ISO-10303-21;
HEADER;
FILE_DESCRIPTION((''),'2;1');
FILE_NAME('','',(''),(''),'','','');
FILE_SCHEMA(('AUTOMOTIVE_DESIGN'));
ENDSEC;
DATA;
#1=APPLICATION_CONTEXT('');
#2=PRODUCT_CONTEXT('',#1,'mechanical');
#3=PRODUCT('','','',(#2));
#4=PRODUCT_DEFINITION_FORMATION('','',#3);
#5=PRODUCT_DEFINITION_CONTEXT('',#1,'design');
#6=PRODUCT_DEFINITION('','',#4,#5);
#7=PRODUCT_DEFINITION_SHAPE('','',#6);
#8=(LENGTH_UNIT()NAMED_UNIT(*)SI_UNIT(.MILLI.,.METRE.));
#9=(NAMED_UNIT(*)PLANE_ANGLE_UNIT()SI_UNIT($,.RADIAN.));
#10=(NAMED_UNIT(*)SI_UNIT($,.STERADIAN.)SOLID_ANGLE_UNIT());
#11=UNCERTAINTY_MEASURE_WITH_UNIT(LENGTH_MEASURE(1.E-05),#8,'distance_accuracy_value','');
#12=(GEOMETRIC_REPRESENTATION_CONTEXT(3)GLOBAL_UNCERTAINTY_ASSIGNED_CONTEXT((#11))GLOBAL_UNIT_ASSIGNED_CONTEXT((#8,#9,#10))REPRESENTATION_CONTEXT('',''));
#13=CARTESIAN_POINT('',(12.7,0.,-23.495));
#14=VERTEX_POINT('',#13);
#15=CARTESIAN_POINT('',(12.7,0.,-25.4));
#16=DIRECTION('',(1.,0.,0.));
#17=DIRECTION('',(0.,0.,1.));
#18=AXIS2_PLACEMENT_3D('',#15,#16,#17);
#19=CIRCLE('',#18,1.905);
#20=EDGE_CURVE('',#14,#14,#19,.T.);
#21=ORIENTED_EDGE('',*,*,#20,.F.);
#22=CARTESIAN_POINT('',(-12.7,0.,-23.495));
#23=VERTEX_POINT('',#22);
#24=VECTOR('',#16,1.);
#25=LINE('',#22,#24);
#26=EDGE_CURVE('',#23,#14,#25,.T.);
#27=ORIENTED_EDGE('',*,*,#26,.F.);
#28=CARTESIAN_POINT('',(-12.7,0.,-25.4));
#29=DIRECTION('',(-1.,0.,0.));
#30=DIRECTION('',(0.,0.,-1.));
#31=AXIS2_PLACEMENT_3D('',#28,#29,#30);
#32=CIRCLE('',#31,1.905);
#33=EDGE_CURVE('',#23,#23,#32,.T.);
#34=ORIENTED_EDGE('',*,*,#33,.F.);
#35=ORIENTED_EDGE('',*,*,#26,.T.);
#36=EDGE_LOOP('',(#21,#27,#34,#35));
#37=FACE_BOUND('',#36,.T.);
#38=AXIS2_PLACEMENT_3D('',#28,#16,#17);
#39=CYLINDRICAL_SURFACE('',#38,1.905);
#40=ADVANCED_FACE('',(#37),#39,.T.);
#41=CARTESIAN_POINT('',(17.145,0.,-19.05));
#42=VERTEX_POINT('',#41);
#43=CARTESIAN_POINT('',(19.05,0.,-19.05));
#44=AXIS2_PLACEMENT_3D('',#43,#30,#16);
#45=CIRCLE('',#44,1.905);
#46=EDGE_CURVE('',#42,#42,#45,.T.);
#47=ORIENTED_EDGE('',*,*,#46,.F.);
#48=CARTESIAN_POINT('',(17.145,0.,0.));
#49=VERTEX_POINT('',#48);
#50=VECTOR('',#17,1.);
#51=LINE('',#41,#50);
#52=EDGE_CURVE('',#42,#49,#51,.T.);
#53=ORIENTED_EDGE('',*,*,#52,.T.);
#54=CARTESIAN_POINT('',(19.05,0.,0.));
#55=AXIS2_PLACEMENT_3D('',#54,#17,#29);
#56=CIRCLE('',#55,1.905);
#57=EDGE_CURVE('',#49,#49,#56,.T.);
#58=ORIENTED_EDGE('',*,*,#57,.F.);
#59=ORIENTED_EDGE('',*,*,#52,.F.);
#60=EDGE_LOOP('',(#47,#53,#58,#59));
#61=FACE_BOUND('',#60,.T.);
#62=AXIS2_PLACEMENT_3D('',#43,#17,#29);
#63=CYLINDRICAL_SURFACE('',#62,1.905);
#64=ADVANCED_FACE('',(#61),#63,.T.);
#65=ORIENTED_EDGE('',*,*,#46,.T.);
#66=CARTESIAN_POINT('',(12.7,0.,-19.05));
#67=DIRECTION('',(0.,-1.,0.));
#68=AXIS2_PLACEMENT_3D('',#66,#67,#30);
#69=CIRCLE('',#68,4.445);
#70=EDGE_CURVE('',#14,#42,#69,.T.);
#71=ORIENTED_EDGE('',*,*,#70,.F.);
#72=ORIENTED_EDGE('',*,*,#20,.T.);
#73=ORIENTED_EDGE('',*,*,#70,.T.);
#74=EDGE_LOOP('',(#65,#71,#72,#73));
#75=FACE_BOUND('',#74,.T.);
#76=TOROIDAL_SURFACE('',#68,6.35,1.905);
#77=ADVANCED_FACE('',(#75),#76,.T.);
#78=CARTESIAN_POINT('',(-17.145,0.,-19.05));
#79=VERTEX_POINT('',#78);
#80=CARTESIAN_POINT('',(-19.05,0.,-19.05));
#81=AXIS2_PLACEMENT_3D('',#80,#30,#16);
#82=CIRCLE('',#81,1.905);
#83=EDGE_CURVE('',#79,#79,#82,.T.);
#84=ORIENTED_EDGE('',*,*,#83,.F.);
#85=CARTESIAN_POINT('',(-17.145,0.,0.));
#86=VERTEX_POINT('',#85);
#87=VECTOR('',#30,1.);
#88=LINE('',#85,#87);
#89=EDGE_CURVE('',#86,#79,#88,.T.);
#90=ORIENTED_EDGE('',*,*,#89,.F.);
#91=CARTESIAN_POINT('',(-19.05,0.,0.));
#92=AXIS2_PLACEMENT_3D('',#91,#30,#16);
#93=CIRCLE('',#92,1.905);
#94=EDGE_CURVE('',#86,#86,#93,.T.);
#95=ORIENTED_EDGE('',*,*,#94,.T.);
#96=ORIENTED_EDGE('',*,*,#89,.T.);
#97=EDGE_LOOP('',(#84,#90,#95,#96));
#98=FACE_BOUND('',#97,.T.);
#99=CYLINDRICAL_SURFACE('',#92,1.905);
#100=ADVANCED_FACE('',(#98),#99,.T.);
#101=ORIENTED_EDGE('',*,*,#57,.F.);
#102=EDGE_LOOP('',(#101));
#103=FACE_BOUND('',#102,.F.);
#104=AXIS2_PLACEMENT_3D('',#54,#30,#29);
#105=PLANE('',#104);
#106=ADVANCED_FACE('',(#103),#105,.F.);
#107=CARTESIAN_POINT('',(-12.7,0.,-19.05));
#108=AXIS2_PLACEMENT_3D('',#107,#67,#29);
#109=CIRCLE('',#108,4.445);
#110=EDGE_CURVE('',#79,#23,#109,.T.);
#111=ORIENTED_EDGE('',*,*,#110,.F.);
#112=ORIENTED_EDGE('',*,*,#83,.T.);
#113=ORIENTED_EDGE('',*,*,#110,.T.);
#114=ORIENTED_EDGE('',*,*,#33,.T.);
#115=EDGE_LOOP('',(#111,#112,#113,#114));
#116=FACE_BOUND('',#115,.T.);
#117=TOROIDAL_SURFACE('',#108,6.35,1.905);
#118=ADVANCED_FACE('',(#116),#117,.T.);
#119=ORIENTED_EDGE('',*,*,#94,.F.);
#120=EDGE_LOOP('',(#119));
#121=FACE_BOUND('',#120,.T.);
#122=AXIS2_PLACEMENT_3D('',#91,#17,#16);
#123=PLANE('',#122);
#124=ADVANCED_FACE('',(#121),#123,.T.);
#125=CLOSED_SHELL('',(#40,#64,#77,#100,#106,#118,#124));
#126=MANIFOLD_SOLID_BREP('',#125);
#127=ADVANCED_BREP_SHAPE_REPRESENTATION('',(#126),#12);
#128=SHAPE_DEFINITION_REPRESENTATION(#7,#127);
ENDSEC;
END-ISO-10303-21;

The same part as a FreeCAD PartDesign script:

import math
import FreeCAD as App
import Part
import Sketcher
from FreeCAD import Vector
Q = App.Units.Quantity

doc = App.newDocument("Part")
body = doc.addObject("PartDesign::Body", "Body")

sketch1 = body.newObject("Sketcher::SketchObject", "Sketch")
sketch1.AttachmentSupport = (doc.getObject("XY_Plane"), [""])
sketch1.MapMode = "FlatFace"
sketch1.addGeometry(Part.Circle(Vector(-19.1, 0, 0), Vector(0, 0, 1), 1.9), False)
sketch1.addConstraint([
    Sketcher.Constraint("PointOnObject", 0, 3, -1),
    Sketcher.Constraint("Diameter", 0, Q("0.15 in")),
    Sketcher.Constraint("DistanceX", 0, 3, -1, 1, Q("0.75 in")),
])

sketch2 = body.newObject("Sketcher::SketchObject", "Sketch001")
sketch2.AttachmentSupport = (doc.getObject("XZ_Plane"), [""])
sketch2.MapMode = "FlatFace"
sketch2.addGeometry([
    Part.LineSegment(Vector(-19, 0, 0), Vector(-19, -19, 0)),
    Part.ArcOfCircle(Part.Circle(Vector(-13, -19, 0), Vector(0, 0, 1), 6), math.radians(180), math.radians(270)),
    Part.LineSegment(Vector(-13, -25, 0), Vector(13, -25, 0)),
    Part.ArcOfCircle(Part.Circle(Vector(13, -19, 0), Vector(0, 0, 1), 6), math.radians(-90), math.radians(0)),
    Part.LineSegment(Vector(19, -19, 0), Vector(19, 0, 0)),
], False)
sketch2.addConstraint([
    Sketcher.Constraint("Tangent", 0, 2, 1, 1),
    Sketcher.Constraint("Tangent", 1, 2, 2, 1),
    Sketcher.Constraint("Tangent", 2, 2, 3, 1),
    Sketcher.Constraint("Tangent", 3, 2, 4, 1),
    Sketcher.Constraint("Vertical", 0),
    Sketcher.Constraint("Horizontal", 2),
    Sketcher.Constraint("Vertical", 4),
    Sketcher.Constraint("Equal", 1, 3),
    Sketcher.Constraint("Symmetric", 0, 1, 4, 2, -1, 1),
    Sketcher.Constraint("PointOnObject", 0, 1, -1),
    Sketcher.Constraint("DistanceX", 2, 1, 2, 2, Q("1 in")),
    Sketcher.Constraint("Radius", 1, Q("0.25 in")),
    Sketcher.Constraint("DistanceY", 1, 2, -1, 1, Q("1 in")),
])
doc.recompute()

additivepipe = body.newObject("PartDesign::AdditivePipe", "AdditivePipe")
additivepipe.Profile = sketch1
additivepipe.Spine = (sketch2, ["Edge1", "Edge2", "Edge3", "Edge4", "Edge5"])

doc.recompute()
